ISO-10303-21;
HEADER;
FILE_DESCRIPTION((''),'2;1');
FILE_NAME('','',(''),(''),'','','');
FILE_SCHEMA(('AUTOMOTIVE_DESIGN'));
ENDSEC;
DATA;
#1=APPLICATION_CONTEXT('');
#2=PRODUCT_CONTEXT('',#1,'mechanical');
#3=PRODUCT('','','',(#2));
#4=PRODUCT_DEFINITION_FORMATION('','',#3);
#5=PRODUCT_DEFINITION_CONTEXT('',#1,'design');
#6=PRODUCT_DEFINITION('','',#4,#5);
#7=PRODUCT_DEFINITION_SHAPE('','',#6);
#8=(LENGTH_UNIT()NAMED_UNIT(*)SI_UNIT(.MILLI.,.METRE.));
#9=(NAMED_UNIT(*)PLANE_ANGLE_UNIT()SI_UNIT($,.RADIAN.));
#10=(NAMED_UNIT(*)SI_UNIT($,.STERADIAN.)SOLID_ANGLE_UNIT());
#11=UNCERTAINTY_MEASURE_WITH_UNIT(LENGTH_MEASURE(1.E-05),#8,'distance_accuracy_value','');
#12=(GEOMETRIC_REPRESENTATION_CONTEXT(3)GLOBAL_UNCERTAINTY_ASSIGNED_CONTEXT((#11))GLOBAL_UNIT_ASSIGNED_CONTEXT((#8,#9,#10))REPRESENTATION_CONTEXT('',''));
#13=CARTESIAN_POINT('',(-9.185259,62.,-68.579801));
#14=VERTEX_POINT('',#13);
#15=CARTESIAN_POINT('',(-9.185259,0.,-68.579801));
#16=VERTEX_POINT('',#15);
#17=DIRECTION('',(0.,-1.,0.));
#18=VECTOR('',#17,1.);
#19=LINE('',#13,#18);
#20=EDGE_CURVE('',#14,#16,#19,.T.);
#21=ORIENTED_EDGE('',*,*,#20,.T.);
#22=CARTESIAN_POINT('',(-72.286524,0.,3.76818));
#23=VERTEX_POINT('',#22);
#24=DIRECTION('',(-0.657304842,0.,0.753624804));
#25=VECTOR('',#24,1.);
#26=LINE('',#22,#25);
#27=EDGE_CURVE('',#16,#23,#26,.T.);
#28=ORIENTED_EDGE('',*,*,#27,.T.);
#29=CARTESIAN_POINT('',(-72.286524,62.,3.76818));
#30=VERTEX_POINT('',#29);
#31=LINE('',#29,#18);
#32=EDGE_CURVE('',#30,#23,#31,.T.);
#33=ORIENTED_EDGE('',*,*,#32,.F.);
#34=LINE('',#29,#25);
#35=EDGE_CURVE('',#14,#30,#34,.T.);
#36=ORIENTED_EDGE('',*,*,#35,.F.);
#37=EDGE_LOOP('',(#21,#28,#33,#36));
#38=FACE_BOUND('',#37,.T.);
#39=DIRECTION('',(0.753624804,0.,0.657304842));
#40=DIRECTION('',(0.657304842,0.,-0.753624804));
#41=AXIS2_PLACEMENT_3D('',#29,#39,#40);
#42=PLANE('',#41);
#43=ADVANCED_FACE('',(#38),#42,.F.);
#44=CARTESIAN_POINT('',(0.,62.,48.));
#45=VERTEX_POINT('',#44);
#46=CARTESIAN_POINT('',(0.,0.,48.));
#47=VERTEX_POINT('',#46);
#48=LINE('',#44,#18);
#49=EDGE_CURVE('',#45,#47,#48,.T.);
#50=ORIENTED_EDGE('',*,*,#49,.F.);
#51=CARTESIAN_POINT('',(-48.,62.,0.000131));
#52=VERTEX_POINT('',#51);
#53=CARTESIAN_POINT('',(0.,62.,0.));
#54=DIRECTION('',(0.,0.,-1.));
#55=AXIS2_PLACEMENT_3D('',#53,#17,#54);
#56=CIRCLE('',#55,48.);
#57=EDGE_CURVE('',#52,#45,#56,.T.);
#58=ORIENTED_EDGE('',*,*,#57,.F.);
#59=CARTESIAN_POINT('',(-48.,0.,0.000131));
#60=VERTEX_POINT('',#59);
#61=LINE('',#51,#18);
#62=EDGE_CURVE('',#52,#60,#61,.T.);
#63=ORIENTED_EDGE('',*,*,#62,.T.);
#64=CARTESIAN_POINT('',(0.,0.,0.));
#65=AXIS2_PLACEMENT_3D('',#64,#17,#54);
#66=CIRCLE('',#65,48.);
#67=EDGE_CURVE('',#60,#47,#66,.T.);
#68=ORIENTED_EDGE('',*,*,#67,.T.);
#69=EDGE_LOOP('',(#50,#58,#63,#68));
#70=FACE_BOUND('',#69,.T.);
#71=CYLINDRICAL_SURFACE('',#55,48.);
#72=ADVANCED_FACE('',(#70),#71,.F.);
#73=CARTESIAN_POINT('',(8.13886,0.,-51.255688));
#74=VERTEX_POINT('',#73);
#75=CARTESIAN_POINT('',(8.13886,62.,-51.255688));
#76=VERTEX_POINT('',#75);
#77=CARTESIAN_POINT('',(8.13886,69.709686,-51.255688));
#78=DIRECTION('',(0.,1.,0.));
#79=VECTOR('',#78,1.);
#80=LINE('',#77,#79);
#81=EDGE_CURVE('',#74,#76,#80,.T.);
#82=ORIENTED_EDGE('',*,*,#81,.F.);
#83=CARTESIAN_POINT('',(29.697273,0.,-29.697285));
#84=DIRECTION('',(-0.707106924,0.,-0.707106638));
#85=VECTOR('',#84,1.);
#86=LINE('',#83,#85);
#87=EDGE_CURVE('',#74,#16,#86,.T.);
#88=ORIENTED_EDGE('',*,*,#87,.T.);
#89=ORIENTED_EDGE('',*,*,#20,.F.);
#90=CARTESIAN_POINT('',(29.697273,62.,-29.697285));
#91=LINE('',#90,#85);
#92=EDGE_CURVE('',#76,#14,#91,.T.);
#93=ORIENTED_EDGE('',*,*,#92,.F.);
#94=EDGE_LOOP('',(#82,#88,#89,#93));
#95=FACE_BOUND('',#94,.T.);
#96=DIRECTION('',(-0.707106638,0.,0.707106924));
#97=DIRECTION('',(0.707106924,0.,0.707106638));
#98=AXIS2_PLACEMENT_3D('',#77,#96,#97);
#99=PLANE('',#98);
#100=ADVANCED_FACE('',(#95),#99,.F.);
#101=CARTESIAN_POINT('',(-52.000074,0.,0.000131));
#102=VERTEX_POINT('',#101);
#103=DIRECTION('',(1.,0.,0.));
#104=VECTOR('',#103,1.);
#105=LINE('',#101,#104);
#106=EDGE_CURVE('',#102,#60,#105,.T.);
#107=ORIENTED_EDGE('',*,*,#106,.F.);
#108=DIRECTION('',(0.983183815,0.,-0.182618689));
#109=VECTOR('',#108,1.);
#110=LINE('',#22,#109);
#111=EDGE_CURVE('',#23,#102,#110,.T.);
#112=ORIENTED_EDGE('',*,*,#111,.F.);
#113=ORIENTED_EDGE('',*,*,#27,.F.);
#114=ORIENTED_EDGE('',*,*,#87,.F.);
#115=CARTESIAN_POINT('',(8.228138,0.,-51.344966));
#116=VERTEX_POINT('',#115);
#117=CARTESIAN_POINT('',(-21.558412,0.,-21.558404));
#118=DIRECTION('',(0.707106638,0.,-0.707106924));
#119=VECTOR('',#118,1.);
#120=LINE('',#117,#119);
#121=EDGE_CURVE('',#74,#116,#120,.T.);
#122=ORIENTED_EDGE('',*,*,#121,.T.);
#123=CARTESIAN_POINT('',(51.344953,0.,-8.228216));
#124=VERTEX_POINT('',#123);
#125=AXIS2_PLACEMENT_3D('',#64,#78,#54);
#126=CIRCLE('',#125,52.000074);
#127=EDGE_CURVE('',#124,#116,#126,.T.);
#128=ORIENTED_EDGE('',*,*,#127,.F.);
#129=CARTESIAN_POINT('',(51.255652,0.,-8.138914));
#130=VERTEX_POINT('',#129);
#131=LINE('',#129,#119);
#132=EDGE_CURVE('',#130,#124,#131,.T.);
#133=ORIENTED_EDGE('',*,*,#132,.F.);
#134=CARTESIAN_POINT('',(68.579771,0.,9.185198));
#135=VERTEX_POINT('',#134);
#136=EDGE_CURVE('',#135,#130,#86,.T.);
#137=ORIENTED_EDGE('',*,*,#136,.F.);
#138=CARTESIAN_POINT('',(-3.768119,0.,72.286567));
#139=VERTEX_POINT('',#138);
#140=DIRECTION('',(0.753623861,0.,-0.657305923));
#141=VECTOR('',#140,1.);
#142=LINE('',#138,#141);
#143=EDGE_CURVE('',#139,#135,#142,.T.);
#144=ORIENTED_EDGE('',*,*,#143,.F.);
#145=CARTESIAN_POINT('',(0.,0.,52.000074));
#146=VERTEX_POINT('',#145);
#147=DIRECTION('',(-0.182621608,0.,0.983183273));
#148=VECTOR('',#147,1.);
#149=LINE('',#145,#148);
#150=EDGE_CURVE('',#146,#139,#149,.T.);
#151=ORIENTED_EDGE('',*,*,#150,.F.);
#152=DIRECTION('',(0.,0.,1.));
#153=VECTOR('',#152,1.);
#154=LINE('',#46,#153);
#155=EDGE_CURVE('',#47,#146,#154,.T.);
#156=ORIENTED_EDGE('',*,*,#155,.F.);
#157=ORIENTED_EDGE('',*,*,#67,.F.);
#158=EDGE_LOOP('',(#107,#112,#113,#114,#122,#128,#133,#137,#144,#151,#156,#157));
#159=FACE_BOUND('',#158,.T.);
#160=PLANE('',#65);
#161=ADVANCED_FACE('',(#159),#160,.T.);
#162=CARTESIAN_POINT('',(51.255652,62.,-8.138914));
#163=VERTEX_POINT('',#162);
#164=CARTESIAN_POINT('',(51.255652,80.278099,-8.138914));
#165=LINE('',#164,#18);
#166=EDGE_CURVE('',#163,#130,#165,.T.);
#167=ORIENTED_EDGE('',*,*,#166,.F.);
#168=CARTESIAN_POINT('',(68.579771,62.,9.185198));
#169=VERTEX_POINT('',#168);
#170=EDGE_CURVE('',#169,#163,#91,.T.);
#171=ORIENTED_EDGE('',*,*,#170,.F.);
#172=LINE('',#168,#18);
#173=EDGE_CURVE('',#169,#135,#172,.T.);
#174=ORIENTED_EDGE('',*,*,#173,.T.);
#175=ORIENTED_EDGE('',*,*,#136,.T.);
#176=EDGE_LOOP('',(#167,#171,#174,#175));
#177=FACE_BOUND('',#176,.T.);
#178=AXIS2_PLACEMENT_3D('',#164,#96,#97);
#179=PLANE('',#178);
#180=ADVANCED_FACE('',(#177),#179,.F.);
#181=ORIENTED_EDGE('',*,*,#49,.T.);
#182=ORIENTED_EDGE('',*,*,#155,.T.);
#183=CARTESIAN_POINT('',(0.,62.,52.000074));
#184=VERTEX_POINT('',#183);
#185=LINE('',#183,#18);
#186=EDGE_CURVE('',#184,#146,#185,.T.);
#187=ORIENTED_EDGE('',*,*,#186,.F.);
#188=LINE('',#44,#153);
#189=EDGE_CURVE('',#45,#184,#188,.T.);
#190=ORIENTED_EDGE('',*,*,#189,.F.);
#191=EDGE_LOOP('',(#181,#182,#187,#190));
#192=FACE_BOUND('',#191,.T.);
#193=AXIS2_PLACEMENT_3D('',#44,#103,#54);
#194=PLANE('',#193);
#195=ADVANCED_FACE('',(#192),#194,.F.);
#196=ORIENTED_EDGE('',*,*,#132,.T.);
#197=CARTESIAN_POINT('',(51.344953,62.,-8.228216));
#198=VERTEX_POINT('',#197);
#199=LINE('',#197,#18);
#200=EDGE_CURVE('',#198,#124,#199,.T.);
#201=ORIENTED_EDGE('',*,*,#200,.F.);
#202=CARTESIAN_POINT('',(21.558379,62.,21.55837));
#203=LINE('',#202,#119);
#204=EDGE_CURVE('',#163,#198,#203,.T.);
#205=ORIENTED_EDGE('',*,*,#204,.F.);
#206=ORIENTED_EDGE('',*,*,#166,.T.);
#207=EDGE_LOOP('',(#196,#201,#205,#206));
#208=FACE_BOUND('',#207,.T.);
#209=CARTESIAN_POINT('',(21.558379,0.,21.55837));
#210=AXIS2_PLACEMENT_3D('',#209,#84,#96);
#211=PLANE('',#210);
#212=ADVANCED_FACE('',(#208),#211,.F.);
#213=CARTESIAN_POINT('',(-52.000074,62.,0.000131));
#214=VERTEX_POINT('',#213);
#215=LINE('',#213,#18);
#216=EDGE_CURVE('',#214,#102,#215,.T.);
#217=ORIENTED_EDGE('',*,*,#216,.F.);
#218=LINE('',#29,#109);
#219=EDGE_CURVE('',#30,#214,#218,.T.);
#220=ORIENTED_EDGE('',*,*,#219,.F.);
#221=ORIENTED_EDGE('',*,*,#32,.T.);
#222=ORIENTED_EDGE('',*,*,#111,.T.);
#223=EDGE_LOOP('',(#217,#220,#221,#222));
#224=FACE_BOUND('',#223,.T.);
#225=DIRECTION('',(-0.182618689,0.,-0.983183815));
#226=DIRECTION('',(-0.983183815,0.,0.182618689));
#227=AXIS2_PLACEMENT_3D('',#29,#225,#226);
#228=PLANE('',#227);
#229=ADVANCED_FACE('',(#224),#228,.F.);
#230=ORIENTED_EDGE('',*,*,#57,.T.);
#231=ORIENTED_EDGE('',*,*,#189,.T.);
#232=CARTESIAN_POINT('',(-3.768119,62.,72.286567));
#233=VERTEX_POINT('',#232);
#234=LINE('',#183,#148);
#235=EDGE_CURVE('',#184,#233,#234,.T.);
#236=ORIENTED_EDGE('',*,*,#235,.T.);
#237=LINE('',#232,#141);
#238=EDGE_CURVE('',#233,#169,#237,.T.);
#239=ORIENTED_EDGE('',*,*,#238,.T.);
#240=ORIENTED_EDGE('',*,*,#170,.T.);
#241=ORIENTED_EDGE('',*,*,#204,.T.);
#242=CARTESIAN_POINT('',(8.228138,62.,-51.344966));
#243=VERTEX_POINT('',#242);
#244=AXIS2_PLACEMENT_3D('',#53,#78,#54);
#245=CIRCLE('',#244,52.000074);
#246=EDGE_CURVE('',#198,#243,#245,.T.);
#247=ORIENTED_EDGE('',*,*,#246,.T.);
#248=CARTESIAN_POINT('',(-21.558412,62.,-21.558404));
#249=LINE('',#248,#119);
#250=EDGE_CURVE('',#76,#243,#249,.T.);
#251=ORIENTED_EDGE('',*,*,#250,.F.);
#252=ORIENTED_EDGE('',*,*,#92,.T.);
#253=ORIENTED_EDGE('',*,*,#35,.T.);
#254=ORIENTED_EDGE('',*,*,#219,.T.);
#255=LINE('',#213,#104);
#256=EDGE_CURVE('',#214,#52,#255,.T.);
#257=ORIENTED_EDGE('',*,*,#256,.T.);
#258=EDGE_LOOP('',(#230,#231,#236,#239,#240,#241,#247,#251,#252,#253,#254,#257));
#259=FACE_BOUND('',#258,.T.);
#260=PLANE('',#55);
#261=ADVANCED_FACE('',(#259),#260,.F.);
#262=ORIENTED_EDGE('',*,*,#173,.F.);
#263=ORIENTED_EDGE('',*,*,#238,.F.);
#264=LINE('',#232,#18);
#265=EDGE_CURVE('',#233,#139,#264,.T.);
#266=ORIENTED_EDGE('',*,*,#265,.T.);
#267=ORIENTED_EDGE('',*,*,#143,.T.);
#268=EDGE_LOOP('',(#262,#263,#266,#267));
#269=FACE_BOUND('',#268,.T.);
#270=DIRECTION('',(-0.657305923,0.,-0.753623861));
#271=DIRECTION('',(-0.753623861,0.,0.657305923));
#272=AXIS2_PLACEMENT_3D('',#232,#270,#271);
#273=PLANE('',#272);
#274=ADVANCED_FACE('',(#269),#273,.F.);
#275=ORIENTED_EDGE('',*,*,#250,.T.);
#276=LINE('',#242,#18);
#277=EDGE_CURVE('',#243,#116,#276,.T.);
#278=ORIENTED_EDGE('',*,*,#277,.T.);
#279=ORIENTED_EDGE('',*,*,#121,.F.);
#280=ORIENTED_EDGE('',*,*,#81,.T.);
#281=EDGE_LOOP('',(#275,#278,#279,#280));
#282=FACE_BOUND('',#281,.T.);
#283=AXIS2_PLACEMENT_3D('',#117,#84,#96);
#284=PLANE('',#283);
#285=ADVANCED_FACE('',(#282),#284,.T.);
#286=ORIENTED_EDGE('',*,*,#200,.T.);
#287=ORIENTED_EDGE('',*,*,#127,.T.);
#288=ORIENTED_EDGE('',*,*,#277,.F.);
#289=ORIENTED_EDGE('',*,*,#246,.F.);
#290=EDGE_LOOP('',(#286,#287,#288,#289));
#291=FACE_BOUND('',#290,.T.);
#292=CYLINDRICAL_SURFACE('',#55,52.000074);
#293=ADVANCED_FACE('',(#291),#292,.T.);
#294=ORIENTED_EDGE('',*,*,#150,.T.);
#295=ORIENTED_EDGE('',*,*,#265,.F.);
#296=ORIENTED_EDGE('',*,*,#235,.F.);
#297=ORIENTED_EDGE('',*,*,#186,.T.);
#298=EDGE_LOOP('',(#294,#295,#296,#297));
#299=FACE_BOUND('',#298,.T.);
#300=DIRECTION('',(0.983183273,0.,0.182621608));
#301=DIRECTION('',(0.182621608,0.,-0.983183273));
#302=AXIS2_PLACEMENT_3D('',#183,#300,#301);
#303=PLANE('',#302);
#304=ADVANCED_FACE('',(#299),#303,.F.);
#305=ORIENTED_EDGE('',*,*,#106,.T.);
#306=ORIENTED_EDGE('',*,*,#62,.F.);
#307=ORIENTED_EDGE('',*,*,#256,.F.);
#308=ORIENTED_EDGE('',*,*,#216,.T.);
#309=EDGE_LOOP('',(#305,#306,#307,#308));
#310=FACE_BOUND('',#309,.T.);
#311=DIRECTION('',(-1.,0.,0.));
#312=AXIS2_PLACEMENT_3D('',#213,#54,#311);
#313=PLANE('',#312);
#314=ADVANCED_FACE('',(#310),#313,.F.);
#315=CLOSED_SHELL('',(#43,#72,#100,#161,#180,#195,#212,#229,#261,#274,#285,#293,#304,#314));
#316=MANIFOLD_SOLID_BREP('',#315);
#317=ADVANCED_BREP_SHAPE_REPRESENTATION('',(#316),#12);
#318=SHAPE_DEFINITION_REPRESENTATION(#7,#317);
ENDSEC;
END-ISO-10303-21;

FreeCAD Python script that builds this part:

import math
import FreeCAD as App
import Part
import Sketcher
from FreeCAD import Vector
Q = App.Units.Quantity


def add_polygon(sketch, points):
    """Adds a closed chain of lines whose ends are joined by coincident constraints."""
    first, n = sketch.GeometryCount, len(points)
    for a, b in zip(points, points[1:] + points[:1]):
        sketch.addGeometry(Part.LineSegment(App.Vector(*a, 0), App.Vector(*b, 0)), False)
    for i in range(n):
        sketch.addConstraint(Sketcher.Constraint("Coincident", first + i, 2, first + (i + 1) % n, 1))

doc = App.newDocument("Part")
body = doc.addObject("PartDesign::Body", "Body")

sketch1 = doc.addObject("Sketcher::SketchObject", "Sketch")
body.addObject(sketch1)
sketch1.AttachmentSupport = (doc.XZ_Plane, [""])
sketch1.MapMode = "FlatFace"
sketch1.addGeometry([
    Part.LineSegment(Vector(-52, 0, 0), Vector(-48, 0, 0)),
    Part.ArcOfCircle(Part.Circle(Vector(0, 0, 0), Vector(0, 0, 1), 48), math.radians(180), math.radians(450)),
    Part.LineSegment(Vector(0, 48, 0), Vector(0, 52, 0)),
    Part.LineSegment(Vector(0, 52, 0), Vector(-3.8, 72.3, 0)),
    Part.LineSegment(Vector(-3.8, 72.3, 0), Vector(68.6, 9.2, 0)),
    Part.LineSegment(Vector(68.6, 9.2, 0), Vector(75.7, 2.1, 0)),
    Part.LineSegment(Vector(75.7, 2.1, 0), Vector(58.5, -15.1, 0)),
    Part.LineSegment(Vector(58.5, -15.1, 0), Vector(51.4, -8, 0)),
    Part.ArcOfCircle(Part.Circle(Vector(0, 0, 0), Vector(0, 0, 1), 52), math.radians(-81), math.radians(-9)),
    Part.LineSegment(Vector(8, -51.4, 0), Vector(15.1, -58.5, 0)),
    Part.LineSegment(Vector(15.1, -58.5, 0), Vector(-2.1, -75.7, 0)),
    Part.LineSegment(Vector(-2.1, -75.7, 0), Vector(-9.2, -68.6, 0)),
    Part.LineSegment(Vector(-9.2, -68.6, 0), Vector(-72.3, 3.8, 0)),
    Part.LineSegment(Vector(-72.3, 3.8, 0), Vector(-52, 0, 0)),
], False)
sketch1.addConstraint([
    Sketcher.Constraint("Coincident", 0, 2, 1, 1),
    Sketcher.Constraint("Coincident", 1, 2, 2, 1),
    Sketcher.Constraint("Coincident", 2, 2, 3, 1),
    Sketcher.Constraint("Coincident", 3, 2, 4, 1),
    Sketcher.Constraint("Coincident", 4, 2, 5, 1),
    Sketcher.Constraint("Coincident", 5, 2, 6, 1),
    Sketcher.Constraint("Coincident", 6, 2, 7, 1),
    Sketcher.Constraint("Coincident", 7, 2, 8, 2),
    Sketcher.Constraint("Coincident", 8, 1, 9, 1),
    Sketcher.Constraint("Coincident", 9, 2, 10, 1),
    Sketcher.Constraint("Coincident", 10, 2, 11, 1),
    Sketcher.Constraint("Coincident", 11, 2, 12, 1),
    Sketcher.Constraint("Coincident", 12, 2, 13, 1),
    Sketcher.Constraint("Coincident", 13, 2, 0, 1),
    Sketcher.Constraint("Horizontal", 0),
    Sketcher.Constraint("Vertical", 2),
    Sketcher.Constraint("Coincident", 1, 3, -1, 1),
    Sketcher.Constraint("Coincident", 8, 3, -1, 1),
    Sketcher.Constraint("PointOnObject", 1, 2, -2),
    Sketcher.Constraint("Perpendicular", 5, 6),
    Sketcher.Constraint("Perpendicular", 6, 7),
    Sketcher.Constraint("Parallel", 7, 9),
    Sketcher.Constraint("Perpendicular", 9, 10),
    Sketcher.Constraint("Perpendicular", 10, 11),
    Sketcher.Constraint("Equal", 0, 2),
    Sketcher.Constraint("Equal", 5, 7),
    Sketcher.Constraint("Equal", 7, 9),
    Sketcher.Constraint("Equal", 9, 11),
    Sketcher.Constraint("Equal", 4, 12),
    Sketcher.Constraint("Radius", 1, Q("48 mm")),
    Sketcher.Constraint("Angle", 5, Q("-45.000012 deg")),
    Sketcher.Constraint("Distance", 4, Q("96 mm")),
    Sketcher.Constraint("Radius", 8, Q("52.000074 mm")),
    Sketcher.Constraint("DistanceY", -1, 1, 4, 2, Q("9.185198 mm")),
    Sketcher.Constraint("DistanceX", -1, 1, 7, 2, Q("51.378502 mm")),
    Sketcher.Constraint("DistanceY", 11, 2, -1, 1, Q("68.579801 mm")),
    Sketcher.Constraint("Distance", 3, Q("20.63348 mm")),
    Sketcher.Constraint("Distance", 5, Q("10.00178 mm")),
    Sketcher.Constraint("Distance", 10, Q("24.326311 mm")),
    Sketcher.Constraint("DistanceX", 0, 1, 0, 2, Q("4.000074 mm")),
    Sketcher.Constraint("DistanceY", -1, 1, 0, 2, Q("0.000131 mm")),
    Sketcher.Constraint("DistanceY", -1, 1, 12, 2, Q("3.76818 mm")),
])
pad1 = doc.addObject("PartDesign::Pad", "Pad")
body.addObject(pad1)
pad1.Profile = sketch1
pad1.Length = 62
pad1.Reversed = True

sketch2 = doc.addObject("Sketcher::SketchObject", "Sketch001")
body.addObject(sketch2)
sketch2.Placement = App.Placement(Vector(38.882499, 0, 38.882483), App.Rotation(Vector(0.707106638, 0, -0.707106924), Vector(0, 0.999999999, 0), Vector(0.707106924, 0, 0.707106638), "ZXY"))
add_polygon(sketch2, [(42, 80), (42, 0), (57, 0), (57, 80)])
sketch2.addConstraint([
    Sketcher.Constraint("Vertical", 0),
    Sketcher.Constraint("Horizontal", 1),
    Sketcher.Constraint("Vertical", 2),
    Sketcher.Constraint("Horizontal", 3),
    Sketcher.Constraint("PointOnObject", 0, 2, -1),
    Sketcher.Constraint("DistanceX", 1, 1, 1, 2, Q("15 mm")),
    Sketcher.Constraint("DistanceY", 0, 2, 0, 1, Q("80.278099 mm")),
    Sketcher.Constraint("DistanceX", -1, 1, 0, 2, Q("41.998294 mm")),
])
pocket1 = doc.addObject("PartDesign::Pocket", "Pocket")
body.addObject(pocket1)
pocket1.Profile = sketch2
pocket1.Length = 24.5

sketch3 = doc.addObject("Sketcher::SketchObject", "Sketch002")
body.addObject(sketch3)
sketch3.Placement = App.Placement(Vector(-38.882532, 0, -38.882516), App.Rotation(Vector(-0.707106638, 0, 0.707106924), Vector(0, 0.999999999, 0), Vector(-0.707106924, 0, -0.707106638), "ZXY"))
add_polygon(sketch3, [(-60, 70), (-60, 0), (-42, 0), (-42, 70)])
sketch3.addConstraint([
    Sketcher.Constraint("Vertical", 0),
    Sketcher.Constraint("Horizontal", 1),
    Sketcher.Constraint("Vertical", 2),
    Sketcher.Constraint("Horizontal", 3),
    Sketcher.Constraint("PointOnObject", 0, 2, -1),
    Sketcher.Constraint("DistanceX", 1, 1, 1, 2, Q("18.127509 mm")),
    Sketcher.Constraint("DistanceY", 0, 2, 0, 1, Q("69.709686 mm")),
    Sketcher.Constraint("DistanceX", 0, 2, -1, 1, Q("60.125803 mm")),
])
pocket2 = doc.addObject("PartDesign::Pocket", "Pocket001")
body.addObject(pocket2)
pocket2.Profile = sketch3
pocket2.Length = 24.5

doc.recompute()
